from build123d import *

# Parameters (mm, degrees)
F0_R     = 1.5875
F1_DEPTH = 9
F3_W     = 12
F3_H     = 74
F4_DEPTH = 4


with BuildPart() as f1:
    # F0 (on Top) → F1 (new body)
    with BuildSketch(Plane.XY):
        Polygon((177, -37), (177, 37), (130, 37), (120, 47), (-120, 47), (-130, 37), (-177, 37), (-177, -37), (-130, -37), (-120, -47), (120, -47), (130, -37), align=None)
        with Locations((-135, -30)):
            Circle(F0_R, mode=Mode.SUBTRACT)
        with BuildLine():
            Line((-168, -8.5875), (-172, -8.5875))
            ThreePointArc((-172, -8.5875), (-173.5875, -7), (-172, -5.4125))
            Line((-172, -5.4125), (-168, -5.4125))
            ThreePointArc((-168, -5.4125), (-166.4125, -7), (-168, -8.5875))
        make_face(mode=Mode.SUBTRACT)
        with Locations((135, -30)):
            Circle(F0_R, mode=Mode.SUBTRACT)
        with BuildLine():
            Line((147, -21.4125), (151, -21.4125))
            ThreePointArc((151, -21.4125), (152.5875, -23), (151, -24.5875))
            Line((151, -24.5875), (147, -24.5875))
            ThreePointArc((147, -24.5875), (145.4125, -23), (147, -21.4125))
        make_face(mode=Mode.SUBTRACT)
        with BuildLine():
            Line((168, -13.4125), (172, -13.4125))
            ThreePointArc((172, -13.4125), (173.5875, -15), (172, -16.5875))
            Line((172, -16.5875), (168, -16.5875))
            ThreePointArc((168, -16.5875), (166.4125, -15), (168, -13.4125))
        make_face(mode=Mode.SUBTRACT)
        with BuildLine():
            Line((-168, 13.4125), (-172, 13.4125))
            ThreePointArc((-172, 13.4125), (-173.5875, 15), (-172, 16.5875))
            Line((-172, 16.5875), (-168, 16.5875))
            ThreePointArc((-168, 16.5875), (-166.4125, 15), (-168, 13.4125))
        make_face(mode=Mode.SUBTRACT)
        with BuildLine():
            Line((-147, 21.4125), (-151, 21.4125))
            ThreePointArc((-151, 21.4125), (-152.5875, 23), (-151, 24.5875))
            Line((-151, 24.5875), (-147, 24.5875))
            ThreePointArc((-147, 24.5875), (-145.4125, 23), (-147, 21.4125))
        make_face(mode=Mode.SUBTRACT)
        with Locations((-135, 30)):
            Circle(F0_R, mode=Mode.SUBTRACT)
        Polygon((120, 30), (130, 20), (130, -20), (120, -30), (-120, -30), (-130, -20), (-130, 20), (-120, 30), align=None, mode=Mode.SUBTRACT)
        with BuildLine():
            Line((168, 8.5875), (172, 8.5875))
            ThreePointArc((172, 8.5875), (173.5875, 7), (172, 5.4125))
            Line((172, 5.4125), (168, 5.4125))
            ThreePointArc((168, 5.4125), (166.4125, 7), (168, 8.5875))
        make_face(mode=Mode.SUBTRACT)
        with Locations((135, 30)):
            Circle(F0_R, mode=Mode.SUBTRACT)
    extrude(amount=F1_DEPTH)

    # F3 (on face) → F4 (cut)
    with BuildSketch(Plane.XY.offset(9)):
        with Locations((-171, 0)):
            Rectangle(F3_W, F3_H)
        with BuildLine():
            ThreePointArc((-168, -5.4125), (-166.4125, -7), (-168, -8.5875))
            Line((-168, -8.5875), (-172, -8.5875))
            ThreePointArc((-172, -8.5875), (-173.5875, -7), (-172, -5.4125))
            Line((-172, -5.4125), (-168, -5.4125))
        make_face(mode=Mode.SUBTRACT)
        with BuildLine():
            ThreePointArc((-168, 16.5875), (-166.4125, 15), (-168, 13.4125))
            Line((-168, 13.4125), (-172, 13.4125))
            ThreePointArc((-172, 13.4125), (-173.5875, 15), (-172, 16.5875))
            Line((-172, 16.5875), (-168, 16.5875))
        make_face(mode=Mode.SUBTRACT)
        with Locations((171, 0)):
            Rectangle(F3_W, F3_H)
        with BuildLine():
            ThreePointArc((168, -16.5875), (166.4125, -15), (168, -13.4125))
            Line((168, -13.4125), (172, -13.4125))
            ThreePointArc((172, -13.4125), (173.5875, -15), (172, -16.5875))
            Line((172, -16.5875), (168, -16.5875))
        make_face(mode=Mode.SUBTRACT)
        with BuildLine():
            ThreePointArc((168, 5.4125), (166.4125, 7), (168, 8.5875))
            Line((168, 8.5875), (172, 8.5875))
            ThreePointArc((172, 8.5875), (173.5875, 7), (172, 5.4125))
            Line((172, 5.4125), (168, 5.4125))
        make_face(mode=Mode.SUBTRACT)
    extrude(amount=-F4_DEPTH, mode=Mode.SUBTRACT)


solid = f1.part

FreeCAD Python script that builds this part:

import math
import FreeCAD as App
import Part
import Sketcher
from FreeCAD import Vector
Q = App.Units.Quantity

doc = App.newDocument("Part")
body = doc.addObject("PartDesign::Body", "Body")

# Sketch on XY plane
sketch1 = body.newObject("Sketcher::SketchObject", "Sketch")
sketch1.AttachmentSupport = (doc.getObject("XY_Plane"), [""])
sketch1.MapMode = "FlatFace"
sketch1.addGeometry(Part.LineSegment(Vector(177, -37, 0), Vector(177, 37, 0)), False)
sketch1.addGeometry(Part.LineSegment(Vector(177, 37, 0), Vector(130, 37, 0)), False)
sketch1.addGeometry(Part.LineSegment(Vector(130, 37, 0), Vector(120, 47, 0)), False)
sketch1.addGeometry(Part.LineSegment(Vector(120, 47, 0), Vector(-120, 47, 0)), False)
sketch1.addGeometry(Part.LineSegment(Vector(-120, 47, 0), Vector(-130, 37, 0)), False)
sketch1.addGeometry(Part.LineSegment(Vector(-130, 37, 0), Vector(-177, 37, 0)), False)
sketch1.addGeometry(Part.LineSegment(Vector(-177, 37, 0), Vector(-177, -37, 0)), False)
sketch1.addGeometry(Part.LineSegment(Vector(-177, -37, 0), Vector(-130, -37, 0)), False)
sketch1.addGeometry(Part.LineSegment(Vector(-130, -37, 0), Vector(-120, -47, 0)), False)
sketch1.addGeometry(Part.LineSegment(Vector(-120, -47, 0), Vector(120, -47, 0)), False)
sketch1.addGeometry(Part.LineSegment(Vector(120, -47, 0), Vector(130, -37, 0)), False)
sketch1.addGeometry(Part.LineSegment(Vector(130, -37, 0), Vector(177, -37, 0)), False)
sketch1.addGeometry(Part.Circle(Vector(-135, -30, 0), Vector(0, 0, 1), 1.5875), False)
sketch1.addGeometry(Part.ArcOfCircle(Part.Circle(Vector(-168, -7, 0), Vector(0, 0, 1), 1.5875), math.radians(-90), math.radians(90)), False)
sketch1.addGeometry(Part.LineSegment(Vector(-168, -8.5875, 0), Vector(-172, -8.5875, 0)), False)
sketch1.addGeometry(Part.ArcOfCircle(Part.Circle(Vector(-172, -7, 0), Vector(0, 0, 1), 1.5875), math.radians(90), math.radians(270)), False)
sketch1.addGeometry(Part.LineSegment(Vector(-172, -5.4125, 0), Vector(-168, -5.4125, 0)), False)
sketch1.addGeometry(Part.Circle(Vector(135, -30, 0), Vector(0, 0, 1), 1.5875), False)
sketch1.addGeometry(Part.ArcOfCircle(Part.Circle(Vector(147, -23, 0), Vector(0, 0, 1), 1.5875), math.radians(90), math.radians(270)), False)
sketch1.addGeometry(Part.LineSegment(Vector(147, -21.4125, 0), Vector(151, -21.4125, 0)), False)
sketch1.addGeometry(Part.ArcOfCircle(Part.Circle(Vector(151, -23, 0), Vector(0, 0, 1), 1.5875), math.radians(-90), math.radians(90)), False)
sketch1.addGeometry(Part.LineSegment(Vector(151, -24.5875, 0), Vector(147, -24.5875, 0)), False)
sketch1.addGeometry(Part.ArcOfCircle(Part.Circle(Vector(168, -15, 0), Vector(0, 0, 1), 1.5875), math.radians(90), math.radians(270)), False)
sketch1.addGeometry(Part.LineSegment(Vector(168, -13.4125, 0), Vector(172, -13.4125, 0)), False)
sketch1.addGeometry(Part.ArcOfCircle(Part.Circle(Vector(172, -15, 0), Vector(0, 0, 1), 1.5875), math.radians(-90), math.radians(90)), False)
sketch1.addGeometry(Part.LineSegment(Vector(172, -16.5875, 0), Vector(168, -16.5875, 0)), False)
sketch1.addGeometry(Part.ArcOfCircle(Part.Circle(Vector(-168, 15, 0), Vector(0, 0, 1), 1.5875), math.radians(-90), math.radians(90)), False)
sketch1.addGeometry(Part.LineSegment(Vector(-168, 13.4125, 0), Vector(-172, 13.4125, 0)), False)
sketch1.addGeometry(Part.ArcOfCircle(Part.Circle(Vector(-172, 15, 0), Vector(0, 0, 1), 1.5875), math.radians(90), math.radians(270)), False)
sketch1.addGeometry(Part.LineSegment(Vector(-172, 16.5875, 0), Vector(-168, 16.5875, 0)), False)
sketch1.addGeometry(Part.LineSegment(Vector(-120, 30, 0), Vector(120, 30, 0)), False)
sketch1.addGeometry(Part.LineSegment(Vector(120, 30, 0), Vector(130, 20, 0)), False)
sketch1.addGeometry(Part.LineSegment(Vector(130, 20, 0), Vector(130, -20, 0)), False)
sketch1.addGeometry(Part.LineSegment(Vector(130, -20, 0), Vector(120, -30, 0)), False)
sketch1.addGeometry(Part.LineSegment(Vector(120, -30, 0), Vector(-120, -30, 0)), False)
sketch1.addGeometry(Part.LineSegment(Vector(-120, -30, 0), Vector(-130, -20, 0)), False)
sketch1.addGeometry(Part.LineSegment(Vector(-130, -20, 0), Vector(-130, 20, 0)), False)
sketch1.addGeometry(Part.LineSegment(Vector(-130, 20, 0), Vector(-120, 30, 0)), False)
sketch1.addGeometry(Part.ArcOfCircle(Part.Circle(Vector(-147, 23, 0), Vector(0, 0, 1), 1.5875), math.radians(-90), math.radians(90)), False)
sketch1.addGeometry(Part.LineSegment(Vector(-147, 21.4125, 0), Vector(-151, 21.4125, 0)), False)
sketch1.addGeometry(Part.ArcOfCircle(Part.Circle(Vector(-151, 23, 0), Vector(0, 0, 1), 1.5875), math.radians(90), math.radians(270)), False)
sketch1.addGeometry(Part.LineSegment(Vector(-151, 24.5875, 0), Vector(-147, 24.5875, 0)), False)
sketch1.addGeometry(Part.Circle(Vector(-135, 30, 0), Vector(0, 0, 1), 1.5875), False)
sketch1.addGeometry(Part.ArcOfCircle(Part.Circle(Vector(168, 7, 0), Vector(0, 0, 1), 1.5875), math.radians(90), math.radians(270)), False)
sketch1.addGeometry(Part.LineSegment(Vector(168, 8.5875, 0), Vector(172, 8.5875, 0)), False)
sketch1.addGeometry(Part.ArcOfCircle(Part.Circle(Vector(172, 7, 0), Vector(0, 0, 1), 1.5875), math.radians(-90), math.radians(90)), False)
sketch1.addGeometry(Part.LineSegment(Vector(172, 5.4125, 0), Vector(168, 5.4125, 0)), False)
sketch1.addGeometry(Part.Circle(Vector(135, 30, 0), Vector(0, 0, 1), 1.5875), False)
sketch1.addConstraint(Sketcher.Constraint("Coincident", 0, 2, 1, 1))
sketch1.addConstraint(Sketcher.Constraint("Coincident", 1, 2, 2, 1))
sketch1.addConstraint(Sketcher.Constraint("Coincident", 2, 2, 3, 1))
sketch1.addConstraint(Sketcher.Constraint("Coincident", 3, 2, 4, 1))
sketch1.addConstraint(Sketcher.Constraint("Coincident", 4, 2, 5, 1))
sketch1.addConstraint(Sketcher.Constraint("Coincident", 5, 2, 6, 1))
sketch1.addConstraint(Sketcher.Constraint("Coincident", 6, 2, 7, 1))
sketch1.addConstraint(Sketcher.Constraint("Coincident", 7, 2, 8, 1))
sketch1.addConstraint(Sketcher.Constraint("Coincident", 8, 2, 9, 1))
sketch1.addConstraint(Sketcher.Constraint("Coincident", 9, 2, 10, 1))
sketch1.addConstraint(Sketcher.Constraint("Coincident", 10, 2, 11, 1))
sketch1.addConstraint(Sketcher.Constraint("Coincident", 11, 2, 0, 1))
sketch1.addConstraint(Sketcher.Constraint("Tangent", 13, 1, 14, 1))
sketch1.addConstraint(Sketcher.Constraint("Tangent", 14, 2, 15, 2))
sketch1.addConstraint(Sketcher.Constraint("Tangent", 15, 1, 16, 1))
sketch1.addConstraint(Sketcher.Constraint("Tangent", 16, 2, 13, 2))
sketch1.addConstraint(Sketcher.Constraint("Tangent", 18, 1, 19, 1))
sketch1.addConstraint(Sketcher.Constraint("Tangent", 19, 2, 20, 2))
sketch1.addConstraint(Sketcher.Constraint("Tangent", 20, 1, 21, 1))
sketch1.addConstraint(Sketcher.Constraint("Tangent", 21, 2, 18, 2))
sketch1.addConstraint(Sketcher.Constraint("Tangent", 22, 1, 23, 1))
sketch1.addConstraint(Sketcher.Constraint("Tangent", 23, 2, 24, 2))
sketch1.addConstraint(Sketcher.Constraint("Tangent", 24, 1, 25, 1))
sketch1.addConstraint(Sketcher.Constraint("Tangent", 25, 2, 22, 2))
sketch1.addConstraint(Sketcher.Constraint("Tangent", 26, 1, 27, 1))
sketch1.addConstraint(Sketcher.Constraint("Tangent", 27, 2, 28, 2))
sketch1.addConstraint(Sketcher.Constraint("Tangent", 28, 1, 29, 1))
sketch1.addConstraint(Sketcher.Constraint("Tangent", 29, 2, 26, 2))
sketch1.addConstraint(Sketcher.Constraint("Coincident", 30, 2, 31, 1))
sketch1.addConstraint(Sketcher.Constraint("Coincident", 31, 2, 32, 1))
sketch1.addConstraint(Sketcher.Constraint("Coincident", 32, 2, 33, 1))
sketch1.addConstraint(Sketcher.Constraint("Coincident", 33, 2, 34, 1))
sketch1.addConstraint(Sketcher.Constraint("Coincident", 34, 2, 35, 1))
sketch1.addConstraint(Sketcher.Constraint("Coincident", 35, 2, 36, 1))
sketch1.addConstraint(Sketcher.Constraint("Coincident", 36, 2, 37, 1))
sketch1.addConstraint(Sketcher.Constraint("Coincident", 37, 2, 30, 1))
sketch1.addConstraint(Sketcher.Constraint("Tangent", 38, 1, 39, 1))
sketch1.addConstraint(Sketcher.Constraint("Tangent", 39, 2, 40, 2))
sketch1.addConstraint(Sketcher.Constraint("Tangent", 40, 1, 41, 1))
sketch1.addConstraint(Sketcher.Constraint("Tangent", 41, 2, 38, 2))
sketch1.addConstraint(Sketcher.Constraint("Tangent", 43, 1, 44, 1))
sketch1.addConstraint(Sketcher.Constraint("Tangent", 44, 2, 45, 2))
sketch1.addConstraint(Sketcher.Constraint("Tangent", 45, 1, 46, 1))
sketch1.addConstraint(Sketcher.Constraint("Tangent", 46, 2, 43, 2))
sketch1.addConstraint(Sketcher.Constraint("Vertical", 0))
sketch1.addConstraint(Sketcher.Constraint("Horizontal", 1))
sketch1.addConstraint(Sketcher.Constraint("Horizontal", 3))
sketch1.addConstraint(Sketcher.Constraint("Horizontal", 5))
sketch1.addConstraint(Sketcher.Constraint("Vertical", 6))
sketch1.addConstraint(Sketcher.Constraint("Horizontal", 7))
sketch1.addConstraint(Sketcher.Constraint("Horizontal", 9))
sketch1.addConstraint(Sketcher.Constraint("Horizontal", 11))
sketch1.addConstraint(Sketcher.Constraint("Horizontal", 14))
sketch1.addConstraint(Sketcher.Constraint("Horizontal", 16))
sketch1.addConstraint(Sketcher.Constraint("Horizontal", 19))
sketch1.addConstraint(Sketcher.Constraint("Horizontal", 21))
sketch1.addConstraint(Sketcher.Constraint("Horizontal", 23))
sketch1.addConstraint(Sketcher.Constraint("Horizontal", 25))
sketch1.addConstraint(Sketcher.Constraint("Horizontal", 27))
sketch1.addConstraint(Sketcher.Constraint("Horizontal", 29))
sketch1.addConstraint(Sketcher.Constraint("Horizontal", 30))
sketch1.addConstraint(Sketcher.Constraint("Vertical", 32))
sketch1.addConstraint(Sketcher.Constraint("Horizontal", 34))
sketch1.addConstraint(Sketcher.Constraint("Vertical", 36))
sketch1.addConstraint(Sketcher.Constraint("Horizontal", 39))
sketch1.addConstraint(Sketcher.Constraint("Horizontal", 41))
sketch1.addConstraint(Sketcher.Constraint("Horizontal", 44))
sketch1.addConstraint(Sketcher.Constraint("Horizontal", 46))
sketch1.addConstraint(Sketcher.Constraint("Equal", 12, 13))
sketch1.addConstraint(Sketcher.Constraint("Equal", 15, 17))
sketch1.addConstraint(Sketcher.Constraint("Equal", 17, 18))
sketch1.addConstraint(Sketcher.Constraint("Equal", 20, 22))
sketch1.addConstraint(Sketcher.Constraint("Equal", 24, 26))
sketch1.addConstraint(Sketcher.Constraint("Equal", 28, 38))
sketch1.addConstraint(Sketcher.Constraint("Equal", 40, 42))
sketch1.addConstraint(Sketcher.Constraint("Equal", 42, 43))
sketch1.addConstraint(Sketcher.Constraint("Equal", 45, 47))
sketch1.addConstraint(Sketcher.Constraint("Symmetric", 22, 3, 26, 3, -1, 1))
sketch1.addConstraint(Sketcher.Constraint("Symmetric", 18, 3, 38, 3, -1, 1))
sketch1.addConstraint(Sketcher.Constraint("Symmetric", 17, 3, 42, 3, -1, 1))
sketch1.addConstraint(Sketcher.Constraint("Symmetric", 13, 3, 43, 3, -1, 1))
sketch1.addConstraint(Sketcher.Constraint("Symmetric", 12, 3, 47, 3, -1, 1))
sketch1.addConstraint(Sketcher.Constraint("Symmetric", 0, 2, 6, 2, -1, 1))
sketch1.addConstraint(Sketcher.Constraint("Symmetric", 2, 2, 8, 2, -1, 1))
sketch1.addConstraint(Sketcher.Constraint("Symmetric", 4, 2, 10, 2, -1, 1))
sketch1.addConstraint(Sketcher.Constraint("Symmetric", 30, 2, 34, 2, -1, 1))
sketch1.addConstraint(Sketcher.Constraint("Symmetric", 31, 2, 35, 2, -1, 1))
sketch1.addConstraint(Sketcher.Constraint("Symmetric", 12, 3, 17, 3, -2))
sketch1.addConstraint(Sketcher.Constraint("Symmetric", 1, 2, 4, 2, -2))
sketch1.addConstraint(Sketcher.Constraint("Perpendicular", 2, 4))
sketch1.addConstraint(Sketcher.Constraint("Perpendicular", 4, 8))
sketch1.addConstraint(Sketcher.Constraint("Perpendicular", 8, 10))
sketch1.addConstraint(Sketcher.Constraint("Perpendicular", 10, 31))
sketch1.addConstraint(Sketcher.Constraint("Perpendicular", 31, 33))
sketch1.addConstraint(Sketcher.Constraint("Perpendicular", 35, 37))
sketch1.addConstraint(Sketcher.Constraint("Horizontal", 47, 3, 30, 2))
sketch1.addConstraint(Sketcher.Constraint("Horizontal", 32, 2, 35, 2))
sketch1.addConstraint(Sketcher.Constraint("Horizontal", 31, 2, 36, 2))
sketch1.addConstraint(Sketcher.Constraint("Vertical", 13, 3, 26, 3))
sketch1.addConstraint(Sketcher.Constraint("Vertical", 15, 3, 28, 3))
sketch1.addConstraint(Sketcher.Constraint("Vertical", 24, 3, 45, 3))
sketch1.addConstraint(Sketcher.Constraint("Vertical", 3, 2, 8, 2))
sketch1.addConstraint(Sketcher.Constraint("Vertical", 9, 2, 30, 2))
sketch1.addConstraint(Sketcher.Constraint("Vertical", 10, 2, 31, 2))
sketch1.addConstraint(Sketcher.Constraint("Equal", 16, 19))
sketch1.addConstraint(Sketcher.Constraint("Equal", 21, 23))
sketch1.addConstraint(Sketcher.Constraint("Equal", 29, 39))
sketch1.addConstraint(Sketcher.Constraint("DistanceX", 1, 2, 1, 1, Q("47 mm")))
sketch1.addConstraint(Sketcher.Constraint("DistanceX", 3, 2, 3, 1, Q("240 mm")))
sketch1.addConstraint(Sketcher.Constraint("DistanceX", 14, 2, 14, 1, Q("4 mm")))
sketch1.addConstraint(Sketcher.Constraint("DistanceY", 0, 1, 0, 2, Q("74 mm")))
sketch1.addConstraint(Sketcher.Constraint("DistanceY", 32, 2, 32, 1, Q("40 mm")))
sketch1.addConstraint(Sketcher.Constraint("Diameter", 12, Q("3.175 mm")))
sketch1.addConstraint(Sketcher.Constraint("DistanceX", 12, 3, -1, 1, Q("135 mm")))
sketch1.addConstraint(Sketcher.Constraint("DistanceY", 12, 3, -1, 1, Q("30 mm")))
sketch1.addConstraint(Sketcher.Constraint("DistanceX", 13, 3, -1, 1, Q("168 mm")))
sketch1.addConstraint(Sketcher.Constraint("DistanceY", 13, 3, -1, 1, Q("7 mm")))
sketch1.addConstraint(Sketcher.Constraint("DistanceX", -1, 1, 18, 3, Q("147 mm")))
sketch1.addConstraint(Sketcher.Constraint("DistanceY", 18, 3, -1, 1, Q("23 mm")))
sketch1.addConstraint(Sketcher.Constraint("DistanceY", 22, 3, -1, 1, Q("15 mm")))
pad1 = body.newObject("PartDesign::Pad", "Pad")
pad1.Profile = sketch1
pad1.Length = 9

# Sketch on XY plane
sketch2 = body.newObject("Sketcher::SketchObject", "Sketch001")
sketch2.AttachmentSupport = (doc.getObject("XY_Plane"), [""])
sketch2.MapMode = "FlatFace"
sketch2.AttachmentOffset = App.Placement(Vector(0, 0, 9), App.Rotation())
sketch2.addGeometry(Part.LineSegment(Vector(-177, 37, 0), Vector(-177, -37, 0)), False)
sketch2.addGeometry(Part.LineSegment(Vector(-177, -37, 0), Vector(-165, -37, 0)), False)
sketch2.addGeometry(Part.LineSegment(Vector(-165, -37, 0), Vector(-165, 37, 0)), False)
sketch2.addGeometry(Part.LineSegment(Vector(-165, 37, 0), Vector(-177, 37, 0)), False)
sketch2.addGeometry(Part.LineSegment(Vector(-172, -5.4125, 0), Vector(-168, -5.4125, 0)), False)
sketch2.addGeometry(Part.ArcOfCircle(Part.Circle(Vector(-168, -7, 0), Vector(0, 0, 1), 1.5875), math.radians(-90), math.radians(90)), False)
sketch2.addGeometry(Part.LineSegment(Vector(-168, -8.5875, 0), Vector(-172, -8.5875, 0)), False)
sketch2.addGeometry(Part.ArcOfCircle(Part.Circle(Vector(-172, -7, 0), Vector(0, 0, 1), 1.5875), math.radians(90), math.radians(270)), False)
sketch2.addGeometry(Part.LineSegment(Vector(-172, 16.5875, 0), Vector(-168, 16.5875, 0)), False)
sketch2.addGeometry(Part.ArcOfCircle(Part.Circle(Vector(-168, 15, 0), Vector(0, 0, 1), 1.5875), math.radians(-90), math.radians(90)), False)
sketch2.addGeometry(Part.LineSegment(Vector(-168, 13.4125, 0), Vector(-172, 13.4125, 0)), False)
sketch2.addGeometry(Part.ArcOfCircle(Part.Circle(Vector(-172, 15, 0), Vector(0, 0, 1), 1.5875), math.radians(90), math.radians(270)), False)
sketch2.addGeometry(Part.LineSegment(Vector(165, 37, 0), Vector(165, -37, 0)), False)
sketch2.addGeometry(Part.LineSegment(Vector(165, -37, 0), Vector(177, -37, 0)), False)
sketch2.addGeometry(Part.LineSegment(Vector(177, -37, 0), Vector(177, 37, 0)), False)
sketch2.addGeometry(Part.LineSegment(Vector(177, 37, 0), Vector(165, 37, 0)), False)
sketch2.addGeometry(Part.LineSegment(Vector(172, -16.5875, 0), Vector(168, -16.5875, 0)), False)
sketch2.addGeometry(Part.ArcOfCircle(Part.Circle(Vector(168, -15, 0), Vector(0, 0, 1), 1.5875), math.radians(90), math.radians(270)), False)
sketch2.addGeometry(Part.LineSegment(Vector(168, -13.4125, 0), Vector(172, -13.4125, 0)), False)
sketch2.addGeometry(Part.ArcOfCircle(Part.Circle(Vector(172, -15, 0), Vector(0, 0, 1), 1.5875), math.radians(-90), math.radians(90)), False)
sketch2.addGeometry(Part.LineSegment(Vector(172, 5.4125, 0), Vector(168, 5.4125, 0)), False)
sketch2.addGeometry(Part.ArcOfCircle(Part.Circle(Vector(168, 7, 0), Vector(0, 0, 1), 1.5875), math.radians(90), math.radians(270)), False)
sketch2.addGeometry(Part.LineSegment(Vector(168, 8.5875, 0), Vector(172, 8.5875, 0)), False)
sketch2.addGeometry(Part.ArcOfCircle(Part.Circle(Vector(172, 7, 0), Vector(0, 0, 1), 1.5875), math.radians(-90), math.radians(90)), False)
sketch2.addConstraint(Sketcher.Constraint("Coincident", 0, 2, 1, 1))
sketch2.addConstraint(Sketcher.Constraint("Coincident", 1, 2, 2, 1))
sketch2.addConstraint(Sketcher.Constraint("Coincident", 2, 2, 3, 1))
sketch2.addConstraint(Sketcher.Constraint("Coincident", 3, 2, 0, 1))
sketch2.addConstraint(Sketcher.Constraint("Tangent", 4, 2, 5, 2))
sketch2.addConstraint(Sketcher.Constraint("Tangent", 5, 1, 6, 1))
sketch2.addConstraint(Sketcher.Constraint("Tangent", 6, 2, 7, 2))
sketch2.addConstraint(Sketcher.Constraint("Tangent", 7, 1, 4, 1))
sketch2.addConstraint(Sketcher.Constraint("Tangent", 8, 2, 9, 2))
sketch2.addConstraint(Sketcher.Constraint("Tangent", 9, 1, 10, 1))
sketch2.addConstraint(Sketcher.Constraint("Tangent", 10, 2, 11, 2))
sketch2.addConstraint(Sketcher.Constraint("Tangent", 11, 1, 8, 1))
sketch2.addConstraint(Sketcher.Constraint("Coincident", 12, 2, 13, 1))
sketch2.addConstraint(Sketcher.Constraint("Coincident", 13, 2, 14, 1))
sketch2.addConstraint(Sketcher.Constraint("Coincident", 14, 2, 15, 1))
sketch2.addConstraint(Sketcher.Constraint("Coincident", 15, 2, 12, 1))
sketch2.addConstraint(Sketcher.Constraint("Tangent", 16, 2, 17, 2))
sketch2.addConstraint(Sketcher.Constraint("Tangent", 17, 1, 18, 1))
sketch2.addConstraint(Sketcher.Constraint("Tangent", 18, 2, 19, 2))
sketch2.addConstraint(Sketcher.Constraint("Tangent", 19, 1, 16, 1))
sketch2.addConstraint(Sketcher.Constraint("Tangent", 20, 2, 21, 2))
sketch2.addConstraint(Sketcher.Constraint("Tangent", 21, 1, 22, 1))
sketch2.addConstraint(Sketcher.Constraint("Tangent", 22, 2, 23, 2))
sketch2.addConstraint(Sketcher.Constraint("Tangent", 23, 1, 20, 1))
sketch2.addConstraint(Sketcher.Constraint("Vertical", 0))
sketch2.addConstraint(Sketcher.Constraint("Horizontal", 1))
sketch2.addConstraint(Sketcher.Constraint("Vertical", 2))
sketch2.addConstraint(Sketcher.Constraint("Horizontal", 3))
sketch2.addConstraint(Sketcher.Constraint("Horizontal", 4))
sketch2.addConstraint(Sketcher.Constraint("Horizontal", 6))
sketch2.addConstraint(Sketcher.Constraint("Horizontal", 8))
sketch2.addConstraint(Sketcher.Constraint("Horizontal", 10))
sketch2.addConstraint(Sketcher.Constraint("Vertical", 12))
sketch2.addConstraint(Sketcher.Constraint("Horizontal", 13))
sketch2.addConstraint(Sketcher.Constraint("Vertical", 14))
sketch2.addConstraint(Sketcher.Constraint("Horizontal", 15))
sketch2.addConstraint(Sketcher.Constraint("Horizontal", 16))
sketch2.addConstraint(Sketcher.Constraint("Horizontal", 18))
sketch2.addConstraint(Sketcher.Constraint("Horizontal", 20))
sketch2.addConstraint(Sketcher.Constraint("Horizontal", 22))
sketch2.addConstraint(Sketcher.Constraint("Equal", 7, 9))
sketch2.addConstraint(Sketcher.Constraint("Equal", 11, 17))
sketch2.addConstraint(Sketcher.Constraint("Equal", 19, 21))
sketch2.addConstraint(Sketcher.Constraint("Symmetric", 9, 3, 17, 3, -1, 1))
sketch2.addConstraint(Sketcher.Constraint("Symmetric", 5, 3, 21, 3, -1, 1))
sketch2.addConstraint(Sketcher.Constraint("Symmetric", 2, 2, 12, 2, -1, 1))
sketch2.addConstraint(Sketcher.Constraint("Symmetric", 0, 2, 14, 2, -1, 1))
sketch2.addConstraint(Sketcher.Constraint("Horizontal", 1, 2, 12, 2))
sketch2.addConstraint(Sketcher.Constraint("Vertical", 5, 3, 9, 3))
sketch2.addConstraint(Sketcher.Constraint("Vertical", 7, 3, 11, 3))
sketch2.addConstraint(Sketcher.Constraint("Vertical", 19, 3, 23, 3))
sketch2.addConstraint(Sketcher.Constraint("Equal", 10, 16))
sketch2.addConstraint(Sketcher.Constraint("DistanceX", 1, 1, 1, 2, Q("12 mm")))
sketch2.addConstraint(Sketcher.Constraint("DistanceX", 4, 1, 4, 2, Q("4 mm")))
sketch2.addConstraint(Sketcher.Constraint("DistanceY", 0, 2, 0, 1, Q("74 mm")))
sketch2.addConstraint(Sketcher.Constraint("DistanceX", 5, 3, -1, 1, Q("168 mm")))
sketch2.addConstraint(Sketcher.Constraint("DistanceY", 5, 3, -1, 1, Q("7 mm")))
sketch2.addConstraint(Sketcher.Constraint("DistanceY", -1, 1, 9, 3, Q("15 mm")))
sketch2.addConstraint(Sketcher.Constraint("DistanceX", 0, 2, -1, 1, Q("177 mm")))
sketch2.addConstraint(Sketcher.Constraint("Radius", 5, Q("1.5875 mm")))
pocket1 = body.newObject("PartDesign::Pocket", "Pocket")
pocket1.Profile = sketch2
pocket1.Length = 4

doc.recompute()
